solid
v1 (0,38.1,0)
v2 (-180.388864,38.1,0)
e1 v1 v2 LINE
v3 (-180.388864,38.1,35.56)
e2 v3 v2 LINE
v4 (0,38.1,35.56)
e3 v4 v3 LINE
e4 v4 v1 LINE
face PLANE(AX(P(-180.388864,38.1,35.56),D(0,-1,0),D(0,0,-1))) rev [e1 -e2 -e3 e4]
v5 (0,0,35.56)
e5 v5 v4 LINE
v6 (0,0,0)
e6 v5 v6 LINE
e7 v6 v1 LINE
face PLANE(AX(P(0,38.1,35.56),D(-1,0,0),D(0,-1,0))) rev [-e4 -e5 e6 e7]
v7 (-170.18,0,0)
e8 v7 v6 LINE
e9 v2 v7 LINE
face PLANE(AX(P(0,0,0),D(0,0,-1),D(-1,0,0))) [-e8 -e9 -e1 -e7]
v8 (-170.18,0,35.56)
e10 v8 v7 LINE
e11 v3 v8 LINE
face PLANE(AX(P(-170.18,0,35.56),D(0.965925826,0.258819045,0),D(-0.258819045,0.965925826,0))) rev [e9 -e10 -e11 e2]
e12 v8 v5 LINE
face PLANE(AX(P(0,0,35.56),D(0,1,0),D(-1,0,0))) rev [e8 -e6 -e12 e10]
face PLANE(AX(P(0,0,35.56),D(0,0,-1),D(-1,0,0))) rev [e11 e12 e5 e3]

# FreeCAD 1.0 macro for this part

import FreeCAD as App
import Part
import Sketcher

V = App.Vector
Q = App.Units.Quantity


def add_polygon(sketch, points):
    """Adds a closed chain of lines whose ends are joined by coincident constraints."""
    first, n = sketch.GeometryCount, len(points)
    for a, b in zip(points, points[1:] + points[:1]):
        sketch.addGeometry(Part.LineSegment(App.Vector(*a, 0), App.Vector(*b, 0)), False)
    for i in range(n):
        sketch.addConstraint(Sketcher.Constraint("Coincident", first + i, 2, first + (i + 1) % n, 1))

doc = App.newDocument("Part")
body = doc.addObject("PartDesign::Body", "Body")

sketch1 = body.newObject("Sketcher::SketchObject", "Sketch")
sketch1.AttachmentSupport = (doc.getObject("XY_Plane"), [""])
sketch1.MapMode = "FlatFace"
add_polygon(sketch1, [(-170, 0), (0, 0), (0, 38), (-180, 38)])
sketch1.addConstraint([
    Sketcher.Constraint("Horizontal", 0),
    Sketcher.Constraint("Vertical", 1),
    Sketcher.Constraint("Horizontal", 2),
    Sketcher.Constraint("Coincident", 0, 2, -1, 1),
    Sketcher.Constraint("DistanceX", 0, 1, 0, 2, Q("6.7 in")),
    Sketcher.Constraint("DistanceY", 1, 1, 1, 2, Q("1.5 in")),
    Sketcher.Constraint("Angle", 3, Q("-75 deg")),
])
pad1 = body.newObject("PartDesign::Pad", "Pad")
pad1.Profile = sketch1
pad1.Length = Q("1.4 in")

doc.recompute()
